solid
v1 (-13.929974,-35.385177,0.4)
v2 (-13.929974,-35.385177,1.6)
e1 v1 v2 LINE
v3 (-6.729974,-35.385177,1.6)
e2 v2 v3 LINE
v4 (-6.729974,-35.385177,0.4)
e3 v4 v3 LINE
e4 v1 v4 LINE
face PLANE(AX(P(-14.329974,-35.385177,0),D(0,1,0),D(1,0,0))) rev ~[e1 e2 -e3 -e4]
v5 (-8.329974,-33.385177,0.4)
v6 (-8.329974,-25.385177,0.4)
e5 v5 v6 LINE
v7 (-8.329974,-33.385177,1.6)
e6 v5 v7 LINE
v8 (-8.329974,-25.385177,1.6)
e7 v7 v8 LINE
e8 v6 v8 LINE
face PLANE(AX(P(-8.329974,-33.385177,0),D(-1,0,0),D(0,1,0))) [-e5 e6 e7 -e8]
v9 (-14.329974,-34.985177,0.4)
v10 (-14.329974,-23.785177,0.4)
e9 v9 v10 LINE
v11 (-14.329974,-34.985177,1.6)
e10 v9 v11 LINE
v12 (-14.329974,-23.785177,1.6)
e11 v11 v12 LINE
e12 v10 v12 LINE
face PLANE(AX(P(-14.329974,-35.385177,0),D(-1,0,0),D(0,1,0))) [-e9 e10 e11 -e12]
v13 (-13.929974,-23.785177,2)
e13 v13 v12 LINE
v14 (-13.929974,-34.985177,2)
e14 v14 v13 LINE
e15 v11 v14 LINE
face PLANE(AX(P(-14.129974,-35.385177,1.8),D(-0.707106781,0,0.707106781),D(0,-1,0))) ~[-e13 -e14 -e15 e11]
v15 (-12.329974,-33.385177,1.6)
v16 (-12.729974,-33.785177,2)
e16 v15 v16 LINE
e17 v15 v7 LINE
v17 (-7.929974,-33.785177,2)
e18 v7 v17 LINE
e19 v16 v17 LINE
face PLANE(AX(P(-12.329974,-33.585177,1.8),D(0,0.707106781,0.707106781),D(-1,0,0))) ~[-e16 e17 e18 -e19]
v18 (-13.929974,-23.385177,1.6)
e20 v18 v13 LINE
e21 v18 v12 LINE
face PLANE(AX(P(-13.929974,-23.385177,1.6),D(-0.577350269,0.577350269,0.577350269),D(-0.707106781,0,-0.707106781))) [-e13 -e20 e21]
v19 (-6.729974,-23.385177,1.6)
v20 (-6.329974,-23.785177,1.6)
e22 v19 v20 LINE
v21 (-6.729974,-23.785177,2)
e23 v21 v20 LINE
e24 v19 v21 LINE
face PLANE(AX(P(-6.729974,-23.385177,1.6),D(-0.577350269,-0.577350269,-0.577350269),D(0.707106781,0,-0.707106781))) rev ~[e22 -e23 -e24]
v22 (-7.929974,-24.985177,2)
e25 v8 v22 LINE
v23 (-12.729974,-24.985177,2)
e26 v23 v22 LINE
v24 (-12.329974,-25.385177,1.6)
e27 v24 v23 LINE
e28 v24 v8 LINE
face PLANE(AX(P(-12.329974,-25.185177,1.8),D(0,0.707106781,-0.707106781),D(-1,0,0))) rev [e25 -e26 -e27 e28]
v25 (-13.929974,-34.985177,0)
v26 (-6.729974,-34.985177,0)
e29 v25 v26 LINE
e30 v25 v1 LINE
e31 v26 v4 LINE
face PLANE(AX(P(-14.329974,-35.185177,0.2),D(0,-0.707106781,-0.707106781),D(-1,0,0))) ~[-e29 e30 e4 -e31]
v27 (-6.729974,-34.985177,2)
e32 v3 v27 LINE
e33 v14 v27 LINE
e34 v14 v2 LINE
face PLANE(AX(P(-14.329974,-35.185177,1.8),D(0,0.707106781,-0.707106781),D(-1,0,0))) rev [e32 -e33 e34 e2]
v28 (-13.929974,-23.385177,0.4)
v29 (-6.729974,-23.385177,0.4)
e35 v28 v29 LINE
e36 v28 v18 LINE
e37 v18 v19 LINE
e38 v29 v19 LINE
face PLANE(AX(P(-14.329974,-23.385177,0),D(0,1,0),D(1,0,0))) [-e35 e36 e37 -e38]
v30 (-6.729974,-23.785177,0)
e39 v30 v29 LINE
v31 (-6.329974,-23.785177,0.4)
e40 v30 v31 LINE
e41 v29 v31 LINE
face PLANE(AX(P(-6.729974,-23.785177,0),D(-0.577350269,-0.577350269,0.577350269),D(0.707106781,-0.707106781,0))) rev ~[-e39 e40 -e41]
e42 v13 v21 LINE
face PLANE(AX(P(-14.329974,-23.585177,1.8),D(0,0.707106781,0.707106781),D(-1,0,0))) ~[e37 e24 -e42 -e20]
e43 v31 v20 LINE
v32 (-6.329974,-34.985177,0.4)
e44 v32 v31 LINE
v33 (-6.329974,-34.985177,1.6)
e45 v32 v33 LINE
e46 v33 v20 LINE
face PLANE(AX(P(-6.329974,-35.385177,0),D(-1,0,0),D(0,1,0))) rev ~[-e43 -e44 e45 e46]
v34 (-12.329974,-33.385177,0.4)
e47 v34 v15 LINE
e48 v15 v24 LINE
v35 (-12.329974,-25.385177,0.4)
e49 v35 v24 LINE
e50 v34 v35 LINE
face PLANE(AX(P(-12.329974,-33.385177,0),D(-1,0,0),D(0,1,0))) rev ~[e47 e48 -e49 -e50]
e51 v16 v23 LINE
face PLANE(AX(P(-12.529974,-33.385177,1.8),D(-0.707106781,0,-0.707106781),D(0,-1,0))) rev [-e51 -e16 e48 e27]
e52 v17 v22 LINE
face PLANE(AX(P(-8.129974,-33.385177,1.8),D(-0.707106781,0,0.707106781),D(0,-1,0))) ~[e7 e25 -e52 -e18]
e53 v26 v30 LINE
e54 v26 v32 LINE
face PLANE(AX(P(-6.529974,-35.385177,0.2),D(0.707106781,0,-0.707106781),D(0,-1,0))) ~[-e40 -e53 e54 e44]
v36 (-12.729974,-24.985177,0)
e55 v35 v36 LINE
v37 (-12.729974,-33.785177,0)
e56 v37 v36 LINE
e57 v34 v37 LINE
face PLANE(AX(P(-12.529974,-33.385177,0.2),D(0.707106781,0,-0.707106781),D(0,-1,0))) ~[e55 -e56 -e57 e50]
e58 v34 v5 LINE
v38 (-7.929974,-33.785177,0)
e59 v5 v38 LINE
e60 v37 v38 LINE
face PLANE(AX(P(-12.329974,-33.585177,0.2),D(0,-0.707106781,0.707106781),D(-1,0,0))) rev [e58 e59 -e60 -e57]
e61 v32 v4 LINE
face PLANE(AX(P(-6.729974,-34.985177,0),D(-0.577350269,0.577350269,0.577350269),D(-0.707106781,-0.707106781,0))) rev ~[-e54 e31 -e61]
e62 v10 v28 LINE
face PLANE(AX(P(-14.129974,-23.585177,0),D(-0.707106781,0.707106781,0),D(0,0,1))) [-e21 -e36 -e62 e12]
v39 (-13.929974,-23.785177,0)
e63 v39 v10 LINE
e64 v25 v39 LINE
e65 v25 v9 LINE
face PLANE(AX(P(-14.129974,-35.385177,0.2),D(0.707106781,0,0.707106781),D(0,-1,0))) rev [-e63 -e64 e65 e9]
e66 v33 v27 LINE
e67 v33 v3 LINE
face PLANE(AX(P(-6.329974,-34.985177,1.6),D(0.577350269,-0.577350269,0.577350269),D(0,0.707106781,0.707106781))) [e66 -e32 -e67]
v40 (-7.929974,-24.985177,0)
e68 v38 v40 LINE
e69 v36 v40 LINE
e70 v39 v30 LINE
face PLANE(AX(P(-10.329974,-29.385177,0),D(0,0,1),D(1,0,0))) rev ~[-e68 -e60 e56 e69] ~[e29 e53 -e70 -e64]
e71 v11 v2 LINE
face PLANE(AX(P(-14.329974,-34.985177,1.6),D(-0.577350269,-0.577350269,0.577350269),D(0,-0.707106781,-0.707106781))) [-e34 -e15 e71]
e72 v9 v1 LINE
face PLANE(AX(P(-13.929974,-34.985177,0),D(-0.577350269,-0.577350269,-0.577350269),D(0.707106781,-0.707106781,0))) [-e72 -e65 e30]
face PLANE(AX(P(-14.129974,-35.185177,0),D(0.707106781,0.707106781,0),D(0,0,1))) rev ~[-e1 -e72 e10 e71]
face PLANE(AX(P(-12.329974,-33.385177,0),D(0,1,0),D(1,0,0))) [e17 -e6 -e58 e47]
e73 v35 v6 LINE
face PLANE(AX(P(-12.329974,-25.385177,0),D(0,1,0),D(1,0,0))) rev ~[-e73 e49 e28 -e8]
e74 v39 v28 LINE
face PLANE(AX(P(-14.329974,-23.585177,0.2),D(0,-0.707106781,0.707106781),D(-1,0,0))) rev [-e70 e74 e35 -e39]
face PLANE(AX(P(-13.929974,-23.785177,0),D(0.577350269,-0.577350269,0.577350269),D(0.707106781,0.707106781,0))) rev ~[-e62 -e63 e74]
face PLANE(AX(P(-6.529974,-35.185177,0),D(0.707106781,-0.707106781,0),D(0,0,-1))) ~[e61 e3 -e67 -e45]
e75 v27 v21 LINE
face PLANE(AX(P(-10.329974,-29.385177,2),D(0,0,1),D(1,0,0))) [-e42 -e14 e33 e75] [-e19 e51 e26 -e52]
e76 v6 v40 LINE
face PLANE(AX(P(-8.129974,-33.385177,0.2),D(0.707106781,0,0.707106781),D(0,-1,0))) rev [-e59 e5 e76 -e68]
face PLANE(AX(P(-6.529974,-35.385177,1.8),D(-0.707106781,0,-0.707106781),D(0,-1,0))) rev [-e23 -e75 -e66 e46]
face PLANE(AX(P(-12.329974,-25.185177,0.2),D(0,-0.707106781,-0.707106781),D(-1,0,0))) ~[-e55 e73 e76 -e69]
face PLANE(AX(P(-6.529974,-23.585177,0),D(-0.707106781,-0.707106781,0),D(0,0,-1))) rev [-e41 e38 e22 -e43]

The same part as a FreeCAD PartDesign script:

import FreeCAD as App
import Part
import Sketcher
from FreeCAD import Vector
Q = App.Units.Quantity


def edges_at(feature, points):
    """Names of the edges that pass closest to the given points."""
    edges = feature.Shape.Edges
    near = lambda p: min(range(len(edges)), key=lambda i: edges[i].distToShape(Part.Vertex(*p))[0])
    return sorted({f"Edge{near(p) + 1}" for p in points})

doc = App.newDocument("Part")
body = doc.addObject("PartDesign::Body", "Body")

sketch1 = body.newObject("Sketcher::SketchObject", "Sketch")
sketch1.AttachmentSupport = (doc.getObject("XY_Plane"), [""])
sketch1.MapMode = "FlatFace"
sketch1.addGeometry([
    Part.LineSegment(Vector(-14.3, -23.4, 0), Vector(-14.3, -35.4, 0)),
    Part.LineSegment(Vector(-14.3, -35.4, 0), Vector(-6.3, -35.4, 0)),
    Part.LineSegment(Vector(-6.3, -35.4, 0), Vector(-6.3, -23.4, 0)),
    Part.LineSegment(Vector(-6.3, -23.4, 0), Vector(-14.3, -23.4, 0)),
    Part.LineSegment(Vector(-8.3, -33.4, 0), Vector(-12.3, -33.4, 0)),
    Part.LineSegment(Vector(-12.3, -33.4, 0), Vector(-12.3, -25.4, 0)),
    Part.LineSegment(Vector(-12.3, -25.4, 0), Vector(-8.3, -25.4, 0)),
    Part.LineSegment(Vector(-8.3, -25.4, 0), Vector(-8.3, -33.4, 0)),
], False)
sketch1.addConstraint([
    Sketcher.Constraint("Coincident", 0, 2, 1, 1),
    Sketcher.Constraint("Coincident", 1, 2, 2, 1),
    Sketcher.Constraint("Coincident", 2, 2, 3, 1),
    Sketcher.Constraint("Coincident", 3, 2, 0, 1),
    Sketcher.Constraint("Coincident", 4, 2, 5, 1),
    Sketcher.Constraint("Coincident", 5, 2, 6, 1),
    Sketcher.Constraint("Coincident", 6, 2, 7, 1),
    Sketcher.Constraint("Coincident", 7, 2, 4, 1),
    Sketcher.Constraint("Vertical", 0),
    Sketcher.Constraint("Horizontal", 1),
    Sketcher.Constraint("Vertical", 2),
    Sketcher.Constraint("Horizontal", 3),
    Sketcher.Constraint("Horizontal", 4),
    Sketcher.Constraint("Vertical", 5),
    Sketcher.Constraint("Horizontal", 6),
    Sketcher.Constraint("Vertical", 7),
    Sketcher.Constraint("Equal", 3, 5),
    Sketcher.Constraint("DistanceX", 1, 1, 1, 2, Q("8 mm")),
    Sketcher.Constraint("DistanceX", 4, 2, 4, 1, Q("4 mm")),
    Sketcher.Constraint("DistanceY", 0, 2, 0, 1, Q("12 mm")),
    Sketcher.Constraint("DistanceX", 0, 2, 4, 2, Q("2 mm")),
    Sketcher.Constraint("DistanceY", 0, 2, 4, 2, Q("2 mm")),
    Sketcher.Constraint("DistanceX", 0, 2, -1, 1, Q("14.329974 mm")),
    Sketcher.Constraint("DistanceY", 0, 2, -1, 1, Q("35.385177 mm")),
])
pad1 = body.newObject("PartDesign::Pad", "Pad")
pad1.Profile = sketch1
pad1.Length = 2
doc.recompute()

chamfer = body.newObject("PartDesign::Chamfer", "Chamfer")
chamfer.Base = (pad1, edges_at(pad1, [
    (-8.33, -29.385, 2),
    (-10.33, -33.385, 2),
    (-12.33, -29.385, 2),
    (-10.33, -25.385, 2),
    (-10.33, -35.385, 2),
    (-14.33, -29.385, 2),
    (-14.33, -35.385, 1),
    (-6.33, -35.385, 1),
    (-6.33, -29.385, 2),
    (-10.33, -23.385, 2),
    (-6.33, -23.385, 1),
    (-14.33, -23.385, 1),
    (-14.33, -29.385, 0),
    (-12.33, -29.385, 0),
    (-10.33, -25.385, 0),
    (-10.33, -23.385, 0),
    (-6.33, -29.385, 0),
    (-8.33, -29.385, 0),
    (-10.33, -33.385, 0),
    (-10.33, -35.385, 0),
]))
chamfer.Size = 0.4

doc.recompute()
